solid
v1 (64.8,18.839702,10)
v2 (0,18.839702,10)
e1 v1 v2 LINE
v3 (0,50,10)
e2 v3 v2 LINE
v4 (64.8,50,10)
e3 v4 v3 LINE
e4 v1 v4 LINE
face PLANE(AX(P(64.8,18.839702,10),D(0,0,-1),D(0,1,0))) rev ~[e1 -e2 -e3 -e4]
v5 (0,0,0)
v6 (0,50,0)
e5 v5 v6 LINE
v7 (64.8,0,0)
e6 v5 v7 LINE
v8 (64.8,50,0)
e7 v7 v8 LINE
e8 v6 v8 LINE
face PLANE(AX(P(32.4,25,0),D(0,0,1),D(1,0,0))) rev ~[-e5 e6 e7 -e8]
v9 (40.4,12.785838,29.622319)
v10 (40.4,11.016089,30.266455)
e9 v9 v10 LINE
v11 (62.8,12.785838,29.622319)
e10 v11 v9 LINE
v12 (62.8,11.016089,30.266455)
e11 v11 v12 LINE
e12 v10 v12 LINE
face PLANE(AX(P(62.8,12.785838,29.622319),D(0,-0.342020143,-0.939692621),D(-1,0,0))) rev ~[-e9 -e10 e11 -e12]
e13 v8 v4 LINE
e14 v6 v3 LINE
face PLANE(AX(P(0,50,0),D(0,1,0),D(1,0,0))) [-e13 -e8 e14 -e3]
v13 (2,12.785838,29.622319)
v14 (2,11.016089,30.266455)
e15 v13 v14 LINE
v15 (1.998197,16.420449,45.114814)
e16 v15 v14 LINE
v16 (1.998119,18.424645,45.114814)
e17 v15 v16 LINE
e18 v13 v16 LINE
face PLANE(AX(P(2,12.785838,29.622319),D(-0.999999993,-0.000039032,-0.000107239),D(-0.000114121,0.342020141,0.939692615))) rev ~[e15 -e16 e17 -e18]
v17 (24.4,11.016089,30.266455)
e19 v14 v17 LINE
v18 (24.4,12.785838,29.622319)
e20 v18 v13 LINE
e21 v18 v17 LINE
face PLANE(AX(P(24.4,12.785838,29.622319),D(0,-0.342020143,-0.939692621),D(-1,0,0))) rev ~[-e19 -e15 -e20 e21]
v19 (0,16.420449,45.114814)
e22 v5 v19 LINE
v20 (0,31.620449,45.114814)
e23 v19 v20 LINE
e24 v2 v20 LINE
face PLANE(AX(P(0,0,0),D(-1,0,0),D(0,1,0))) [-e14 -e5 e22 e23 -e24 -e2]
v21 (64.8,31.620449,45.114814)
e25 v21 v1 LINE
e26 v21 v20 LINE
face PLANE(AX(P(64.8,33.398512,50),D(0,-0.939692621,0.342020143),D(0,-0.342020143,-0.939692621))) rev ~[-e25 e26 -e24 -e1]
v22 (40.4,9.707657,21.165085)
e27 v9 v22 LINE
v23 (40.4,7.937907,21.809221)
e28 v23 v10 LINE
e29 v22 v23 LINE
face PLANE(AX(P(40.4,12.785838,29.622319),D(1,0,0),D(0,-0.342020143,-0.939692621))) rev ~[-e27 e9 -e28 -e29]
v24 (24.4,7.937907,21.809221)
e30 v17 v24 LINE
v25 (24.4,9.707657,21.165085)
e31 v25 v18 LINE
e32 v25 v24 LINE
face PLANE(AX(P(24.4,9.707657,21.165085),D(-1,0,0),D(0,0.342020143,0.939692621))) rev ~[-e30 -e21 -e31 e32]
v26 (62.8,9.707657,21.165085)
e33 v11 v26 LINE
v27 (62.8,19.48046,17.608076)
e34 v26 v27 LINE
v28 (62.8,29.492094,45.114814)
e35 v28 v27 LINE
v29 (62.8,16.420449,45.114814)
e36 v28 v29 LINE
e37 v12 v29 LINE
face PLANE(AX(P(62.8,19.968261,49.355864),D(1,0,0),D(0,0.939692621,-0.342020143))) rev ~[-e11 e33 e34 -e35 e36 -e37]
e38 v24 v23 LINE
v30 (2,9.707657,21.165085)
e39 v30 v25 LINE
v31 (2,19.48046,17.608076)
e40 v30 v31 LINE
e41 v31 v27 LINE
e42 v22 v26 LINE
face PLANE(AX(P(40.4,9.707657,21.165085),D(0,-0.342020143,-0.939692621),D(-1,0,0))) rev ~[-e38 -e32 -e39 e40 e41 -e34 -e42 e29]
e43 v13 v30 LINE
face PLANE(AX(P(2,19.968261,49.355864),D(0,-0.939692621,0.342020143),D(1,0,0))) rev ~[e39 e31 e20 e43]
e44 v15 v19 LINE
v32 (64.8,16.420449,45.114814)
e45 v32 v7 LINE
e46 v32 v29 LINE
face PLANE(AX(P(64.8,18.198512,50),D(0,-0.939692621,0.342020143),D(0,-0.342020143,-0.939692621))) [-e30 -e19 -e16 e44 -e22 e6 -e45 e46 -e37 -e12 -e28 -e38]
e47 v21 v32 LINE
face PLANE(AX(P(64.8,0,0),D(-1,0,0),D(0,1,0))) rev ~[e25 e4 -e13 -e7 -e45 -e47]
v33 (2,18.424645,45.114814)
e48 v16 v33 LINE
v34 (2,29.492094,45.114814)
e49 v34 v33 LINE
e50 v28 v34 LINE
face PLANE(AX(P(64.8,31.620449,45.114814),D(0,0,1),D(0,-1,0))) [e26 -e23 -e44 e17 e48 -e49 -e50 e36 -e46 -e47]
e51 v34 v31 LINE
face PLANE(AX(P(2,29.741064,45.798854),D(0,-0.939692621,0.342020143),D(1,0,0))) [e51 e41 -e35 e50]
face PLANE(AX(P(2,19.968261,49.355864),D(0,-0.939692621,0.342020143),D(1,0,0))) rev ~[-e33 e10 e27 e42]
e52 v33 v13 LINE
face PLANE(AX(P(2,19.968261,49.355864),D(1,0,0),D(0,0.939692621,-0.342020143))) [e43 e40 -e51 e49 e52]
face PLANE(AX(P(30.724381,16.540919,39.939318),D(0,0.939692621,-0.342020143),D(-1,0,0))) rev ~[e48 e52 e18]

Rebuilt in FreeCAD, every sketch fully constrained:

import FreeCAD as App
import Part
import Sketcher

V = App.Vector
Q = App.Units.Quantity


def add_polygon(sketch, points):
    """Adds a closed chain of lines whose ends are joined by coincident constraints."""
    first, n = sketch.GeometryCount, len(points)
    for a, b in zip(points, points[1:] + points[:1]):
        sketch.addGeometry(Part.LineSegment(App.Vector(*a, 0), App.Vector(*b, 0)), False)
    for i in range(n):
        sketch.addConstraint(Sketcher.Constraint("Coincident", first + i, 2, first + (i + 1) % n, 1))

doc = App.newDocument("Part")
body = doc.addObject("PartDesign::Body", "Body")

sketch1 = doc.addObject("Sketcher::SketchObject", "Sketch")
body.addObject(sketch1)
sketch1.AttachmentSupport = (doc.XY_Plane, [""])
sketch1.MapMode = "FlatFace"
add_polygon(sketch1, [(0, 50), (0, 0), (65, 0), (65, 50)])
sketch1.addConstraint([
    Sketcher.Constraint("Vertical", 0),
    Sketcher.Constraint("Horizontal", 1),
    Sketcher.Constraint("Vertical", 2),
    Sketcher.Constraint("Horizontal", 3),
    Sketcher.Constraint("Coincident", 0, 2, -1, 1),
    Sketcher.Constraint("DistanceY", 0, 2, 0, 1, 50.0),
    Sketcher.Constraint("DistanceX", 1, 1, 1, 2, 64.8),
])
pad1 = doc.addObject("PartDesign::Pad", "Pad")
body.addObject(pad1)
pad1.Profile = sketch1
pad1.Length = 50

sketch2 = doc.addObject("Sketcher::SketchObject", "Sketch001")
body.addObject(sketch2)
sketch2.AttachmentSupport = (doc.YZ_Plane, [""])
sketch2.MapMode = "FlatFace"
sketch2.AttachmentOffset = App.Placement(V(0, 0, 64.8), App.Rotation())
add_polygon(sketch2, [(0, 50), (0, 0), (18, 50)])
sketch2.addConstraint([
    Sketcher.Constraint("Vertical", 0),
    Sketcher.Constraint("Horizontal", 2),
    Sketcher.Constraint("Coincident", 0, 2, -1, 1),
    Sketcher.Constraint("DistanceY", 0, 2, 0, 1, 50.0),
    Sketcher.Constraint("Angle", 1, Q("70 deg")),
])
pocket1 = doc.addObject("PartDesign::Pocket", "Pocket")
body.addObject(pocket1)
pocket1.Profile = sketch2
pocket1.Type = "ThroughAll"

sketch3 = doc.addObject("Sketcher::SketchObject", "Sketch002")
body.addObject(sketch3)
sketch3.AttachmentSupport = (doc.YZ_Plane, [""])
sketch3.MapMode = "FlatFace"
sketch3.AttachmentOffset = App.Placement(V(0, 0, 64.8), App.Rotation())
add_polygon(sketch3, [(33, 50), (19, 10), (50, 10), (50, 50)])
sketch3.addConstraint([
    Sketcher.Constraint("Horizontal", 1),
    Sketcher.Constraint("Vertical", 2),
    Sketcher.Constraint("Horizontal", 3),
    Sketcher.Constraint("DistanceY", 2, 1, 2, 2, 40.0),
    Sketcher.Constraint("Angle", 0, Q("-110 deg")),
    Sketcher.Constraint("DistanceY", -1, 1, 0, 2, 10.0),
    Sketcher.Constraint("DistanceX", -1, 1, 1, 2, 50.0),
    Sketcher.Constraint("DistanceX", 3, 2, 3, 1, 16.601488),
])
pocket2 = doc.addObject("PartDesign::Pocket", "Pocket001")
body.addObject(pocket2)
pocket2.Profile = sketch3
pocket2.Type = "ThroughAll"

sketch4 = doc.addObject("Sketcher::SketchObject", "Sketch003")
body.addObject(sketch4)
sketch4.AttachmentSupport = (doc.YZ_Plane, [""])
sketch4.MapMode = "FlatFace"
sketch4.AttachmentOffset = App.Placement(V(0, 0, 64.8), App.Rotation())
add_polygon(sketch4, [(18, 50), (32, 45), (33, 50)])
sketch4.addConstraint([
    Sketcher.Constraint("Horizontal", 2),
    Sketcher.Constraint("Perpendicular", 0, 1),
    Sketcher.Constraint("Angle", 0, Q("-20 deg")),
    Sketcher.Constraint("DistanceX", 2, 2, 2, 1, 15.2),
    Sketcher.Constraint("DistanceY", -1, 1, 1, 2, 50.0),
    Sketcher.Constraint("DistanceX", -1, 1, 0, 2, 31.620449),
])
pocket3 = doc.addObject("PartDesign::Pocket", "Pocket002")
body.addObject(pocket3)
pocket3.Profile = sketch4
pocket3.Type = "ThroughAll"

sketch5 = doc.addObject("Sketcher::SketchObject", "Sketch004")
body.addObject(sketch5)
sketch5.Placement = App.Placement(V(0, 18.198512, 50), App.Rotation(V(1, 0, 0), V(0, 0.939692621, -0.342020143), V(0, 0.342020143, 0.939692621), "ZXY"))
add_polygon(sketch5, [(2, 12), (2, 2), (63, 2), (63, 12)])
sketch5.addConstraint([
    Sketcher.Constraint("Vertical", 0),
    Sketcher.Constraint("Horizontal", 1),
    Sketcher.Constraint("Vertical", 2),
    Sketcher.Constraint("Horizontal", 3),
    Sketcher.Constraint("DistanceX", 1, 1, 1, 2, 60.8),
    Sketcher.Constraint("DistanceY", 0, 2, 0, 1, 10.4),
    Sketcher.Constraint("DistanceX", -1, 1, 0, 2, 2.0),
    Sketcher.Constraint("DistanceY", -1, 1, 0, 2, 1.883328),
])
pocket4 = doc.addObject("PartDesign::Pocket", "Pocket003")
body.addObject(pocket4)
pocket4.Profile = sketch5
pocket4.Length = 30

sketch6 = doc.addObject("Sketcher::SketchObject", "Sketch005")
body.addObject(sketch6)
sketch6.Placement = App.Placement(V(0, 1.769749, -0.644136), App.Rotation(V(-1, 0, 0), V(0, 0.342020143, 0.939692621), V(0, 0.939692621, -0.342020143), "ZXY"))
add_polygon(sketch6, [(-63, 32), (-40, 32), (-40, 23), (-24, 23), (-24, 32), (-2, 32), (-2, 64), (-63, 53)])
sketch6.addConstraint([
    Sketcher.Constraint("Horizontal", 0),
    Sketcher.Constraint("Vertical", 1),
    Sketcher.Constraint("Horizontal", 2),
    Sketcher.Constraint("Vertical", 3),
    Sketcher.Constraint("Horizontal", 4),
    Sketcher.Constraint("Vertical", 7),
    Sketcher.Constraint("Horizontal", 0, 2, 3, 2),
    Sketcher.Constraint("Equal", 0, 4),
    Sketcher.Constraint("DistanceX", 2, 1, 2, 2, 16.0),
    Sketcher.Constraint("DistanceY", 1, 2, 1, 1, 9.0),
    Sketcher.Constraint("DistanceY", 7, 2, 7, 1, 21.0),
    Sketcher.Constraint("DistanceX", 0, 1, 0, 2, 22.4),
    Sketcher.Constraint("DistanceX", 4, 2, -1, 1, 2.0),
    Sketcher.Constraint("DistanceY", -1, 1, 0, 2, 32.208889),
    Sketcher.Constraint("DistanceX", 5, 2, -1, 1, 1.996389),
    Sketcher.Constraint("Distance", 5, 31.641778),
])
pocket5 = doc.addObject("PartDesign::Pocket", "Pocket004")
body.addObject(pocket5)
pocket5.Profile = sketch6
pocket5.Type = "ThroughAll"

sketch7 = doc.addObject("Sketcher::SketchObject", "Sketch006")
body.addObject(sketch7)
sketch7.AttachmentSupport = (doc.YZ_Plane, [""])
sketch7.MapMode = "FlatFace"
sketch7.AttachmentOffset = App.Placement(V(0, 0, 64.8), App.Rotation())
add_polygon(sketch7, [(16, 45), (32, 45), (18, 50)])
sketch7.addConstraint([
    Sketcher.Constraint("Horizontal", 0),
    Sketcher.Constraint("Perpendicular", 1, 2),
    Sketcher.Constraint("Angle", 1, Q("160 deg")),
    Sketcher.Constraint("DistanceX", 0, 1, 0, 2, 15.2),
    Sketcher.Constraint("DistanceY", -1, 1, 1, 2, 50.0),
    Sketcher.Constraint("DistanceX", -1, 1, 0, 2, 31.620449),
])
pocket6 = doc.addObject("PartDesign::Pocket", "Pocket005")
body.addObject(pocket6)
pocket6.Profile = sketch7
pocket6.Type = "ThroughAll"

doc.recompute()
